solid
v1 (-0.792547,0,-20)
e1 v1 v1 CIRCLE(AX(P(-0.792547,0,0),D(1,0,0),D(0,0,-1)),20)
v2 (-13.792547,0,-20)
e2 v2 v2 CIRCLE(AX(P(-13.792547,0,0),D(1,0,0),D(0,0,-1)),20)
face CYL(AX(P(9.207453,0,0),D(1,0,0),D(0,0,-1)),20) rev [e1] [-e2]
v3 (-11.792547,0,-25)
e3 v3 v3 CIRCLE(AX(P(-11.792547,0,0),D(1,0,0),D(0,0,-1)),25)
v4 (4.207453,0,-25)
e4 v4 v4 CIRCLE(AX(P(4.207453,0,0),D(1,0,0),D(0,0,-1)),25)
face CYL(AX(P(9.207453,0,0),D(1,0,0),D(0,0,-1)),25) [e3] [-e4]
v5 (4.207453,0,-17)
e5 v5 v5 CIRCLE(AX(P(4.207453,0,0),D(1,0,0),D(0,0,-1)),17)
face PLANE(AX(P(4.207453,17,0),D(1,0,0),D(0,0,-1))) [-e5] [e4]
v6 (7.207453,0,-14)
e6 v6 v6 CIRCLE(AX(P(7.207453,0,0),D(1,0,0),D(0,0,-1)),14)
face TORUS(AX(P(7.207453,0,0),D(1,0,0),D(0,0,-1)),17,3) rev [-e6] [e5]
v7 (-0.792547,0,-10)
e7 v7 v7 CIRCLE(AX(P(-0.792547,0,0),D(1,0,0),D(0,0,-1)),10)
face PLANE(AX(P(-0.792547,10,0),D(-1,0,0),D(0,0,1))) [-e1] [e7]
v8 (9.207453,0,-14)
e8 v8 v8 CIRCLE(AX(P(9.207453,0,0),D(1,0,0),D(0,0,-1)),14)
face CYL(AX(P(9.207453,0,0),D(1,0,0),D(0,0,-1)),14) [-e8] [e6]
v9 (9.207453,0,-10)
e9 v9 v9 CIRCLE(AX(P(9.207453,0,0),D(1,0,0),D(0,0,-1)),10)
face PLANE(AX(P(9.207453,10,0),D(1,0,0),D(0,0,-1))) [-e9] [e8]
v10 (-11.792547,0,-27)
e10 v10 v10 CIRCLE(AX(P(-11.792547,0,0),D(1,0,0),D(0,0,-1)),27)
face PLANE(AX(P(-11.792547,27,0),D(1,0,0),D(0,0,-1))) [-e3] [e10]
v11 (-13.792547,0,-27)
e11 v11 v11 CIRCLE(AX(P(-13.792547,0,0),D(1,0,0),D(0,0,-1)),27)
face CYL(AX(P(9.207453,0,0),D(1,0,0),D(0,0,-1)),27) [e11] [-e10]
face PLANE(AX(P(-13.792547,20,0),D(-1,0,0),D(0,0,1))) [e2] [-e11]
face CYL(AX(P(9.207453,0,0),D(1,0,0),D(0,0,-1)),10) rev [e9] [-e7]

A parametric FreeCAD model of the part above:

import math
import FreeCAD as App
import Part
import Sketcher

V = App.Vector
Q = App.Units.Quantity

doc = App.newDocument("Part")
body = doc.addObject("PartDesign::Body", "Body")

# Sketch on XY plane
sketch1 = body.newObject("Sketcher::SketchObject", "Sketch")
sketch1.AttachmentSupport = (doc.getObject("XY_Plane"), [""])
sketch1.MapMode = "FlatFace"
sketch1.addGeometry([
    Part.LineSegment(V(9.207453, 10, 0), V(9.207453, 14, 0)),  # 0
    Part.LineSegment(V(9.207453, 14, 0), V(7.207453, 14, 0)),  # 1
    Part.ArcOfCircle(Part.Circle(V(7.207453, 17, 0), V(0, 0, 1), 3), math.radians(180), math.radians(270)),  # 2
    Part.LineSegment(V(4.207453, 17, 0), V(4.207453, 25, 0)),  # 3
    Part.LineSegment(V(4.207453, 25, 0), V(-11.792547, 25, 0)),  # 4
    Part.LineSegment(V(-11.792547, 25, 0), V(-11.792547, 27, 0)),  # 5
    Part.LineSegment(V(-11.792547, 27, 0), V(-13.792547, 27, 0)),  # 6
    Part.LineSegment(V(-13.792547, 27, 0), V(-13.792547, 20, 0)),  # 7
    Part.LineSegment(V(-13.792547, 20, 0), V(-0.792547, 20, 0)),  # 8
    Part.LineSegment(V(-0.792547, 20, 0), V(-0.792547, 10, 0)),  # 9
    Part.LineSegment(V(-0.792547, 10, 0), V(9.207453, 10, 0)),  # 10
], False)
sketch1.addConstraint([
    Sketcher.Constraint("Coincident", 0, 2, 1, 1),
    Sketcher.Constraint("Tangent", 1, 2, 2, 2),
    Sketcher.Constraint("Tangent", 2, 1, 3, 1),
    Sketcher.Constraint("Coincident", 3, 2, 4, 1),
    Sketcher.Constraint("Coincident", 4, 2, 5, 1),
    Sketcher.Constraint("Coincident", 5, 2, 6, 1),
    Sketcher.Constraint("Coincident", 6, 2, 7, 1),
    Sketcher.Constraint("Coincident", 7, 2, 8, 1),
    Sketcher.Constraint("Coincident", 8, 2, 9, 1),
    Sketcher.Constraint("Coincident", 9, 2, 10, 1),
    Sketcher.Constraint("Coincident", 10, 2, 0, 1),
    Sketcher.Constraint("Vertical", 0),
    Sketcher.Constraint("Horizontal", 1),
    Sketcher.Constraint("Vertical", 3),
    Sketcher.Constraint("Horizontal", 4),
    Sketcher.Constraint("Vertical", 5),
    Sketcher.Constraint("Horizontal", 6),
    Sketcher.Constraint("Vertical", 7),
    Sketcher.Constraint("Horizontal", 8),
    Sketcher.Constraint("Vertical", 9),
    Sketcher.Constraint("Horizontal", 10),
    Sketcher.Constraint("Equal", 1, 6),
    Sketcher.Constraint("Equal", 6, 5),
    Sketcher.Constraint("Equal", 10, 9),
    Sketcher.Constraint("Radius", 2, Q("3 mm")),
    Sketcher.Constraint("DistanceX", 1, 2, 1, 1, Q("2 mm")),
    Sketcher.Constraint("DistanceX", 4, 2, 4, 1, Q("16 mm")),
    Sketcher.Constraint("DistanceX", 8, 1, 8, 2, Q("13 mm")),
    Sketcher.Constraint("DistanceY", 0, 1, 0, 2, Q("4 mm")),
    Sketcher.Constraint("DistanceY", 3, 1, 3, 2, Q("8 mm")),
    Sketcher.Constraint("DistanceY", -1, 1, 2, 3, Q("17 mm")),
    Sketcher.Constraint("DistanceX", -1, 1, 2, 3, Q("7.207453 mm")),
])
revolution = body.newObject("PartDesign::Revolution", "Revolution")
revolution.Profile = sketch1
revolution.ReferenceAxis = (sketch1, ["H_Axis"])
revolution.Angle = 360

doc.recompute()
